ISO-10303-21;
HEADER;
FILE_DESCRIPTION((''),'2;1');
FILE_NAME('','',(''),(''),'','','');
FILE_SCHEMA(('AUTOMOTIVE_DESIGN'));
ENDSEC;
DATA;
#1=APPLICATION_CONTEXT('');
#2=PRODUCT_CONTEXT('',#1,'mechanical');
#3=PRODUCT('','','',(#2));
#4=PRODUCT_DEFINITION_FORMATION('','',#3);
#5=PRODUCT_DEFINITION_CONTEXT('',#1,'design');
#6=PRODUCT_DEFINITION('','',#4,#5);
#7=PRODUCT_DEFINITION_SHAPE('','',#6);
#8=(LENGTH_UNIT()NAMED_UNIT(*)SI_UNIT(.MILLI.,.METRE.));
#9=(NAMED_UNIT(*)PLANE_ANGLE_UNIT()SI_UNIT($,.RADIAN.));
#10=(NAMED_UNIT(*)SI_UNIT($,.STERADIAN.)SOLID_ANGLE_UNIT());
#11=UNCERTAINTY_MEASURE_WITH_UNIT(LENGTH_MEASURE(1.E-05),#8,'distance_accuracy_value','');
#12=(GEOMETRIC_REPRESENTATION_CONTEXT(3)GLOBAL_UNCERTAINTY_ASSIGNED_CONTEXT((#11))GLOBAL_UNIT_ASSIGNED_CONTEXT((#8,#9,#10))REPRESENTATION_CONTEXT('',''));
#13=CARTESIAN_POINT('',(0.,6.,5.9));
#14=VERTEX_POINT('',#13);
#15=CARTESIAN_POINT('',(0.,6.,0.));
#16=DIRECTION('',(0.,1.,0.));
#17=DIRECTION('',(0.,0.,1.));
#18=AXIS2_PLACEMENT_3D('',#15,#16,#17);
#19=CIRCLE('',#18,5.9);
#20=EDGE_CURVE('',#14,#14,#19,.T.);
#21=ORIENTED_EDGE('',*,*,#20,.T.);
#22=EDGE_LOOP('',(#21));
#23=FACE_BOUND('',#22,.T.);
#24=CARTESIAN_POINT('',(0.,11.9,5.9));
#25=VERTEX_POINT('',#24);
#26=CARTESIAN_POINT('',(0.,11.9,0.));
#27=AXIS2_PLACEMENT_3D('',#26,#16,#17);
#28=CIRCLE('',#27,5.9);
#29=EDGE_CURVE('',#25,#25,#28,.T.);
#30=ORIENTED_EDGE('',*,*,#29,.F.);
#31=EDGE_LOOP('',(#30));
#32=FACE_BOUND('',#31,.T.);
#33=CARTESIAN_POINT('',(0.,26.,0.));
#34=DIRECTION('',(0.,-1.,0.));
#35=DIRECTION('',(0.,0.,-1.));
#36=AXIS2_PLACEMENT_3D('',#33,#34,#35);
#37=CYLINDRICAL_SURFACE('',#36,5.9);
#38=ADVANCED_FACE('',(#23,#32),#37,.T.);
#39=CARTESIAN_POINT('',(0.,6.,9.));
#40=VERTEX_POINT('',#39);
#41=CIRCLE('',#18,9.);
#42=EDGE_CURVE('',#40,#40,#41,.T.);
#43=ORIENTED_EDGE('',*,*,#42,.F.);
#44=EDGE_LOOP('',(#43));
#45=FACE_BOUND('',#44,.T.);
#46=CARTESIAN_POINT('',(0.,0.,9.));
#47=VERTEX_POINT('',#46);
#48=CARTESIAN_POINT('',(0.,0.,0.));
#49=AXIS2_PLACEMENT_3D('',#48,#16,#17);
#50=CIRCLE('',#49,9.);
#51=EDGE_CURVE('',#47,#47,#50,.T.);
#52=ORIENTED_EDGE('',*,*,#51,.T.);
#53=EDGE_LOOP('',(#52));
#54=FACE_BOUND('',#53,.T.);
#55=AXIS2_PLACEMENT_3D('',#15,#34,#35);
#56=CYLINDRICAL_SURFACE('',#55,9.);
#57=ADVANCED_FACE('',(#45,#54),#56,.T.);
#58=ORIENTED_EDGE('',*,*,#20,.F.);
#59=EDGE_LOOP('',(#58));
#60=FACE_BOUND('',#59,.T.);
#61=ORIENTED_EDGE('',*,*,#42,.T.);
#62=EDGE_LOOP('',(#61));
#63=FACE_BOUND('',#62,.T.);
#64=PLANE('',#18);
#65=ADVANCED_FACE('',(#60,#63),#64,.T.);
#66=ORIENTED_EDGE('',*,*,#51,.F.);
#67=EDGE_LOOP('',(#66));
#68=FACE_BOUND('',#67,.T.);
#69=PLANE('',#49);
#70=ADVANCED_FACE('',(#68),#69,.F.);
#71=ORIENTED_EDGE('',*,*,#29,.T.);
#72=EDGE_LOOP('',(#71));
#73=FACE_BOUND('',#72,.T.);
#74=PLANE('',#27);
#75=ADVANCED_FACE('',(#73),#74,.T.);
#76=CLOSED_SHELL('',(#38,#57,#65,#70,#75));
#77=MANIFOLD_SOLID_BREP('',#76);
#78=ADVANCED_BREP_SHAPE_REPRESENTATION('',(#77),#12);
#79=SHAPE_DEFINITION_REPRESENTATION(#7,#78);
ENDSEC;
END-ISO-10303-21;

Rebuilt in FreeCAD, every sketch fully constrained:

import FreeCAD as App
import Part
import Sketcher
from FreeCAD import Vector
Q = App.Units.Quantity

doc = App.newDocument("Part")
body = doc.addObject("PartDesign::Body", "Body")

sketch1 = doc.addObject("Sketcher::SketchObject", "Sketch")
body.addObject(sketch1)
sketch1.AttachmentSupport = (doc.XZ_Plane, [""])
sketch1.MapMode = "FlatFace"
sketch1.addGeometry(Part.Circle(Vector(0, 0, 0), Vector(0, 0, 1), 9), False)
sketch1.addConstraint([
    Sketcher.Constraint("Coincident", 0, 3, -1, 1),
    Sketcher.Constraint("Diameter", 0, Q("18 mm")),
])
pad1 = doc.addObject("PartDesign::Pad", "Pad")
body.addObject(pad1)
pad1.Profile = sketch1
pad1.Length = 6
pad1.Reversed = True

sketch2 = doc.addObject("Sketcher::SketchObject", "Sketch001")
body.addObject(sketch2)
sketch2.AttachmentSupport = (doc.XZ_Plane, [""])
sketch2.MapMode = "FlatFace"
sketch2.AttachmentOffset = App.Placement(Vector(0, 0, -6), App.Rotation())
sketch2.addGeometry(Part.Circle(Vector(0, 0, 0), Vector(0, 0, 1), 6), False)
sketch2.addConstraint([
    Sketcher.Constraint("Coincident", 0, 3, -1, 1),
    Sketcher.Constraint("Diameter", 0, Q("11.8 mm")),
])
pad2 = doc.addObject("PartDesign::Pad", "Pad001")
body.addObject(pad2)
pad2.Profile = sketch2
pad2.Length = 20
pad2.Reversed = True

sketch3 = doc.addObject("Sketcher::SketchObject", "Sketch002")
body.addObject(sketch3)
sketch3.AttachmentSupport = (doc.XZ_Plane, [""])
sketch3.MapMode = "FlatFace"
sketch3.AttachmentOffset = App.Placement(Vector(0, 0, -26), App.Rotation())
sketch3.addGeometry(Part.Circle(Vector(0, 0, 0), Vector(0, 0, 1), 10), False)
sketch3.addConstraint([
    Sketcher.Constraint("Coincident", 0, 3, -1, 1),
    Sketcher.Constraint("Diameter", 0, Q("19.675664 mm")),
])
pocket1 = doc.addObject("PartDesign::Pocket", "Pocket")
body.addObject(pocket1)
pocket1.Profile = sketch3
pocket1.Length = 14.1
pocket1.Reversed = True

doc.recompute()
